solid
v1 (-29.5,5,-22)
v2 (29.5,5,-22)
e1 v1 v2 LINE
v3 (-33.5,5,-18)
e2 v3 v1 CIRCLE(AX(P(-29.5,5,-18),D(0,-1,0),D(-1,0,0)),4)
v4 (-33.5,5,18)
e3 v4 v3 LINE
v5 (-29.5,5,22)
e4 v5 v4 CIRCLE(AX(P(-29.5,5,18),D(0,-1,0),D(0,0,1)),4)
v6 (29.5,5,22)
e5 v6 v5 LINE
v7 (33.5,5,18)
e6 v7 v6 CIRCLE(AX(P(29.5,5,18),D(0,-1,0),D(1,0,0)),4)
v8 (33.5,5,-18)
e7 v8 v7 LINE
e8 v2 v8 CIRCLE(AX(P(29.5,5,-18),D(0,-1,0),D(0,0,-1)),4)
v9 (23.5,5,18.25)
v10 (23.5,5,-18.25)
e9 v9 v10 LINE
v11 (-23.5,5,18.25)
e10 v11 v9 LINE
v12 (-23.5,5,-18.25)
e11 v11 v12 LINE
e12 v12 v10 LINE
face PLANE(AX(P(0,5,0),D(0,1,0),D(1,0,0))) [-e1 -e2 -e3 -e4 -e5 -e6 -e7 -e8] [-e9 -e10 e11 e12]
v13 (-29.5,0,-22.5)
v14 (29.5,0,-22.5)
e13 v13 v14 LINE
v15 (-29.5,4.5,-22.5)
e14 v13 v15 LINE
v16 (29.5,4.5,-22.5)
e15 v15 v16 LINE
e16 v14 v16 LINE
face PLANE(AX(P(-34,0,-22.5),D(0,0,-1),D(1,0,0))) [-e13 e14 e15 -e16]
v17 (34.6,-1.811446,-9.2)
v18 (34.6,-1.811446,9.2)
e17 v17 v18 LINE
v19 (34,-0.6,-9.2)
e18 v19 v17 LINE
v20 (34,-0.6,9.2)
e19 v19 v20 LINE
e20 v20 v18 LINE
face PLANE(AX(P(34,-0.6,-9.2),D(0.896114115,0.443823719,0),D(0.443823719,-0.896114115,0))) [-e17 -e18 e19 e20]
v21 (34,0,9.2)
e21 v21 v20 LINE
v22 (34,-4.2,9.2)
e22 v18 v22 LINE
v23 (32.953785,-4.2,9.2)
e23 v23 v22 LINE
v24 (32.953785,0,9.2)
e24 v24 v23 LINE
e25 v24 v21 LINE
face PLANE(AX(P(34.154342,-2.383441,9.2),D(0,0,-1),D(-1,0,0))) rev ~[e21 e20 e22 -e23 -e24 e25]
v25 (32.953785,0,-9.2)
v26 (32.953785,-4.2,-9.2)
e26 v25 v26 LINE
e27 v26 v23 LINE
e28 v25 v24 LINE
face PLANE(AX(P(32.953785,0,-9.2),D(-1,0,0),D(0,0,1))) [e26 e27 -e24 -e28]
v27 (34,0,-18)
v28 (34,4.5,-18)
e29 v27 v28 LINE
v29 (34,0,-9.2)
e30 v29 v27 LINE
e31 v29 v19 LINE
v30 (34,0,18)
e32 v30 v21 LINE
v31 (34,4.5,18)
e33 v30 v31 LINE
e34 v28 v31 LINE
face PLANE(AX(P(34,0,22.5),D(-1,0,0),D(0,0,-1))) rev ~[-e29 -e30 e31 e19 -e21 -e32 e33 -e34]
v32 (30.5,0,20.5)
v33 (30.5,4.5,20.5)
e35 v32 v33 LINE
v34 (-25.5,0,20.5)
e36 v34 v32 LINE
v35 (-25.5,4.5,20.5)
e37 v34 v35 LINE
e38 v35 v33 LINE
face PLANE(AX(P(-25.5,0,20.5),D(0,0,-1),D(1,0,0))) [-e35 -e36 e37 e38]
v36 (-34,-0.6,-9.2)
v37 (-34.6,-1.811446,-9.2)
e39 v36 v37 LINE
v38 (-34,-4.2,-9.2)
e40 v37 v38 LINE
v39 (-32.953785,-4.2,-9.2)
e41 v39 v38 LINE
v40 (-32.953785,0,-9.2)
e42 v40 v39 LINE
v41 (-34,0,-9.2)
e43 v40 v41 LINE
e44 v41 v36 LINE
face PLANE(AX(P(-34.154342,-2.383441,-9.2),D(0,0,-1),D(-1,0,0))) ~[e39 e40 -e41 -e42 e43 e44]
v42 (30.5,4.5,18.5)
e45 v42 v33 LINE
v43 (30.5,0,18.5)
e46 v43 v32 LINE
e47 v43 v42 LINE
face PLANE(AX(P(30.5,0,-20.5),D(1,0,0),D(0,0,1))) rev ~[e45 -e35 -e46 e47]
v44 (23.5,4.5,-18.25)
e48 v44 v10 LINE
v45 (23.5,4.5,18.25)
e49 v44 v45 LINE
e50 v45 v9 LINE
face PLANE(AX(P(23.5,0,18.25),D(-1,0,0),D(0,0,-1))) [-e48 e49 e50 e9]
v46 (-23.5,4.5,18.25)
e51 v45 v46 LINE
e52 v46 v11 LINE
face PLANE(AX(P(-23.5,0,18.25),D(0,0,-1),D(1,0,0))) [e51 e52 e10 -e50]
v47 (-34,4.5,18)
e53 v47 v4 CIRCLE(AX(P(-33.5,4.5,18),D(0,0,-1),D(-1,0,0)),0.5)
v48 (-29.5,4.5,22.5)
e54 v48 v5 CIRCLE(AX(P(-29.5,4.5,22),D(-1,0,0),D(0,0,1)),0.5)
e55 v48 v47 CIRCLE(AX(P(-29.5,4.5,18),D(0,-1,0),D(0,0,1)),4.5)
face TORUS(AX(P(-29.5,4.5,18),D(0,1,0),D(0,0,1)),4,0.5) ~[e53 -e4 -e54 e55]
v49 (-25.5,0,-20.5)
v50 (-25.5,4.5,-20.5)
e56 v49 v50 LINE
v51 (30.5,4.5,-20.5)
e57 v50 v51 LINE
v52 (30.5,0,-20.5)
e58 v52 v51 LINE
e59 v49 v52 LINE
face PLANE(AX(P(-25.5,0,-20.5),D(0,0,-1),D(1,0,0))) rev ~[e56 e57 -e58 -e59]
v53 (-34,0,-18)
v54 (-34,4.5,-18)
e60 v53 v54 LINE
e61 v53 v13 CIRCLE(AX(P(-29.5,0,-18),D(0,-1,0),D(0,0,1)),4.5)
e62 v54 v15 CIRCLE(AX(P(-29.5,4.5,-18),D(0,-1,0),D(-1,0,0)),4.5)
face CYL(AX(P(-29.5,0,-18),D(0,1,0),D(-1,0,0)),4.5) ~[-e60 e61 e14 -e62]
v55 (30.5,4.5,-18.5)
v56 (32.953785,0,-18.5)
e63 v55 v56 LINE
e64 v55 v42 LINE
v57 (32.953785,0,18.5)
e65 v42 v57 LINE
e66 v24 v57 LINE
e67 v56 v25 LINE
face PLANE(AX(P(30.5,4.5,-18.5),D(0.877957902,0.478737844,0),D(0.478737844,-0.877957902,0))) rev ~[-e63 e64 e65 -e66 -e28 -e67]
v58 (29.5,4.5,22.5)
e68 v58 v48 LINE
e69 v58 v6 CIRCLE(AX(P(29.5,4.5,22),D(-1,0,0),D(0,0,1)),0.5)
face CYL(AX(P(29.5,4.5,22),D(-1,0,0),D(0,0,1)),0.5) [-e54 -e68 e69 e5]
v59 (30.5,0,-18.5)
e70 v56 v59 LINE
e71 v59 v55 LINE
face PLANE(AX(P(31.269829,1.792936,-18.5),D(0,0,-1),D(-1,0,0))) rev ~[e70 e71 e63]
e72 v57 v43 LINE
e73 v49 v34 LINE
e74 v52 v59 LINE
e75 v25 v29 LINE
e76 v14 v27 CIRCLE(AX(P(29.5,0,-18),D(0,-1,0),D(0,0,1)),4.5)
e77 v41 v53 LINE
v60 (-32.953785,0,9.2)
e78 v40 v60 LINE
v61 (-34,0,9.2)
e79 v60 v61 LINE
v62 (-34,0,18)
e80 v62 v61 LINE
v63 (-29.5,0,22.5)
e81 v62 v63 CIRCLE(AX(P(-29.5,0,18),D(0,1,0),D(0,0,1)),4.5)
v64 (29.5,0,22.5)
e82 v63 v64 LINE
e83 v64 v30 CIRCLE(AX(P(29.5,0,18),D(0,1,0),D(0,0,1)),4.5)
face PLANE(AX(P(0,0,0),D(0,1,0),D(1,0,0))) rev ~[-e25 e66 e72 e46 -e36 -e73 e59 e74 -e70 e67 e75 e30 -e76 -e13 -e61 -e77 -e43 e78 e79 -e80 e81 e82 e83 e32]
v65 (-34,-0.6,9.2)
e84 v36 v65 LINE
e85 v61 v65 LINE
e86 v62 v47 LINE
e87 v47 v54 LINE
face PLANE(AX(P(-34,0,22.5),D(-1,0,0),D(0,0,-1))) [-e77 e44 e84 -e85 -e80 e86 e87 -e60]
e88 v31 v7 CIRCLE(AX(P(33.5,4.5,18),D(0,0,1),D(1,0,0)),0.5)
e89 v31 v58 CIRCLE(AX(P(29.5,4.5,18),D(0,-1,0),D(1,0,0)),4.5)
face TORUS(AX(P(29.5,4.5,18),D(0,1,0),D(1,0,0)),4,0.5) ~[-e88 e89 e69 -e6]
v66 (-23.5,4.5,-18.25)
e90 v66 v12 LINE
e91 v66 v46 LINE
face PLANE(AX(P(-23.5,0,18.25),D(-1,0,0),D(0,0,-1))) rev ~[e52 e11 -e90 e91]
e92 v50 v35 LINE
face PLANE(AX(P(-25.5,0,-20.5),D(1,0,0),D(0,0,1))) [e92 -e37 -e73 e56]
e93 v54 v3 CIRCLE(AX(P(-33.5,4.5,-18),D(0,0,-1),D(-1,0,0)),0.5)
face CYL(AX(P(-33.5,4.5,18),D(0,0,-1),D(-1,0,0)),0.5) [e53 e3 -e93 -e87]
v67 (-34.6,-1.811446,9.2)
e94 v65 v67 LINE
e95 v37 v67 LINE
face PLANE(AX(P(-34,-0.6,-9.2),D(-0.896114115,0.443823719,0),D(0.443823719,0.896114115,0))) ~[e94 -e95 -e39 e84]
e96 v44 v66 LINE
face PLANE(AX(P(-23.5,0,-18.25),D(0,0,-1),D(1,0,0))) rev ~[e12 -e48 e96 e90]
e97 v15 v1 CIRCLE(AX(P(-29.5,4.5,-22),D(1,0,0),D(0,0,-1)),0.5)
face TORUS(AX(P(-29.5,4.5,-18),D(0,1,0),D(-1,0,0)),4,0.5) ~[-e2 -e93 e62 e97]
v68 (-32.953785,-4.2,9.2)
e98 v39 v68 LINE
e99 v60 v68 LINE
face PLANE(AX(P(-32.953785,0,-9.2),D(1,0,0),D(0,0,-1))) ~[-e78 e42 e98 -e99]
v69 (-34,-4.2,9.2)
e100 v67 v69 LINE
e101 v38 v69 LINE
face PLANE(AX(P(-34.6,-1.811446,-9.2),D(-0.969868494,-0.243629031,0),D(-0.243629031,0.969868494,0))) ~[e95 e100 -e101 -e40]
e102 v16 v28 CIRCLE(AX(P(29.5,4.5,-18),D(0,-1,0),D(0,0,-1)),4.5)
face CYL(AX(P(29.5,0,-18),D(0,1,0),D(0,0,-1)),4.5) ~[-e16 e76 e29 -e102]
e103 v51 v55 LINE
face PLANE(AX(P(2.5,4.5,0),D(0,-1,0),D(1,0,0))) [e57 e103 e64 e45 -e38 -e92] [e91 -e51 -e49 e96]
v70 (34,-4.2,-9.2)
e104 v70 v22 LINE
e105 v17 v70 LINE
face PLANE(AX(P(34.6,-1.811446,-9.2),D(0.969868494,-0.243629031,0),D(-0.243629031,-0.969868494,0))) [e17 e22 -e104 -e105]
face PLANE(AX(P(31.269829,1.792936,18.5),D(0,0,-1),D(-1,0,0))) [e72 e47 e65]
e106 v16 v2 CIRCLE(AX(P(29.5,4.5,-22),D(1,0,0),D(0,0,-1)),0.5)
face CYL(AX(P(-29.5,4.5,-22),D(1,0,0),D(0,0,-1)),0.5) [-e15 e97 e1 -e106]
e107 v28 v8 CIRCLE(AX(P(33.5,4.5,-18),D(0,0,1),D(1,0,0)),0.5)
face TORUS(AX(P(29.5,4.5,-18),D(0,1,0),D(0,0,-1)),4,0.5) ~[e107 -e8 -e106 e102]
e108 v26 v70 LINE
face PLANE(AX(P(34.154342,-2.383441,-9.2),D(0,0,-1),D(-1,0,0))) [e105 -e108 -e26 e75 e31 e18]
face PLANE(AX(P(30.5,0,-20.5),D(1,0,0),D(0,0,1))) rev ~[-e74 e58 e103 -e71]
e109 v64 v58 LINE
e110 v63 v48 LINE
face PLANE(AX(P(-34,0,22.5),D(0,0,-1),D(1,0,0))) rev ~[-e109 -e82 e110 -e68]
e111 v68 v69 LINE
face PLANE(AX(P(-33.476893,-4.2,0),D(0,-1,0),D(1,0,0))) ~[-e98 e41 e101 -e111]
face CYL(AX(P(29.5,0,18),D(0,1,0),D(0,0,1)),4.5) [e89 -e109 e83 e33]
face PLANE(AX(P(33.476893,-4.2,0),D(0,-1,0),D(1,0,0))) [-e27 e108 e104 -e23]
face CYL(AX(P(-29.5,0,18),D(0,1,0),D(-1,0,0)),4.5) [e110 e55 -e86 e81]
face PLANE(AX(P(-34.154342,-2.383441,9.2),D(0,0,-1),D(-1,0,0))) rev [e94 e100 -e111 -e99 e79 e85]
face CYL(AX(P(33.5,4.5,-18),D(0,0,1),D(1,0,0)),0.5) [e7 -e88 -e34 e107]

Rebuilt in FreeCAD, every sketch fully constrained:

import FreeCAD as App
import Part
import Sketcher
Q = App.Units.Quantity


def edges_at(feature, points):
    """Names of the edges that pass closest to the given points."""
    edges = feature.Shape.Edges
    near = lambda p: min(range(len(edges)), key=lambda i: edges[i].distToShape(Part.Vertex(*p))[0])
    return sorted({f"Edge{near(p) + 1}" for p in points})

doc = App.newDocument("Part")
body = doc.addObject("PartDesign::Body", "Body")

sketch1 = body.newObject("Sketcher::SketchObject", "Sketch")
sketch1.AttachmentSupport = (doc.getObject("XZ_Plane"), [""])
sketch1.MapMode = "FlatFace"
sketch1.addGeometry(Part.LineSegment(App.Vector(-34, -22.5, 0), App.Vector(-34, 22.5, 0)), False)
sketch1.addGeometry(Part.LineSegment(App.Vector(-34, 22.5, 0), App.Vector(34, 22.5, 0)), False)
sketch1.addGeometry(Part.LineSegment(App.Vector(34, 22.5, 0), App.Vector(34, -22.5, 0)), False)
sketch1.addGeometry(Part.LineSegment(App.Vector(34, -22.5, 0), App.Vector(-34, -22.5, 0)), False)
sketch1.addGeometry(Part.LineSegment(App.Vector(23.5, 18.25, 0), App.Vector(-23.5, 18.25, 0)), False)
sketch1.addGeometry(Part.LineSegment(App.Vector(-23.5, 18.25, 0), App.Vector(-23.5, -18.25, 0)), False)
sketch1.addGeometry(Part.LineSegment(App.Vector(-23.5, -18.25, 0), App.Vector(23.5, -18.25, 0)), False)
sketch1.addGeometry(Part.LineSegment(App.Vector(23.5, -18.25, 0), App.Vector(23.5, 18.25, 0)), False)
sketch1.addConstraint(Sketcher.Constraint("Coincident", 0, 2, 1, 1))
sketch1.addConstraint(Sketcher.Constraint("Coincident", 1, 2, 2, 1))
sketch1.addConstraint(Sketcher.Constraint("Coincident", 2, 2, 3, 1))
sketch1.addConstraint(Sketcher.Constraint("Coincident", 3, 2, 0, 1))
sketch1.addConstraint(Sketcher.Constraint("Coincident", 4, 2, 5, 1))
sketch1.addConstraint(Sketcher.Constraint("Coincident", 5, 2, 6, 1))
sketch1.addConstraint(Sketcher.Constraint("Coincident", 6, 2, 7, 1))
sketch1.addConstraint(Sketcher.Constraint("Coincident", 7, 2, 4, 1))
sketch1.addConstraint(Sketcher.Constraint("Vertical", 0))
sketch1.addConstraint(Sketcher.Constraint("Horizontal", 1))
sketch1.addConstraint(Sketcher.Constraint("Vertical", 2))
sketch1.addConstraint(Sketcher.Constraint("Horizontal", 3))
sketch1.addConstraint(Sketcher.Constraint("Horizontal", 4))
sketch1.addConstraint(Sketcher.Constraint("Vertical", 5))
sketch1.addConstraint(Sketcher.Constraint("Horizontal", 6))
sketch1.addConstraint(Sketcher.Constraint("Vertical", 7))
sketch1.addConstraint(Sketcher.Constraint("Symmetric", 0, 2, 2, 2, -1, 1))
sketch1.addConstraint(Sketcher.Constraint("Symmetric", 4, 2, 6, 2, -1, 1))
sketch1.addConstraint(Sketcher.Constraint("DistanceX", 1, 1, 1, 2, Q("68 mm")))
sketch1.addConstraint(Sketcher.Constraint("DistanceX", 4, 2, 4, 1, Q("47 mm")))
sketch1.addConstraint(Sketcher.Constraint("DistanceY", 0, 1, 0, 2, Q("45 mm")))
sketch1.addConstraint(Sketcher.Constraint("DistanceY", 5, 2, 5, 1, Q("36.5 mm")))
pad1 = body.newObject("PartDesign::Pad", "Pad")
pad1.Profile = sketch1
pad1.Length = 5
pad1.Reversed = True

sketch2 = body.newObject("Sketcher::SketchObject", "Sketch001")
sketch2.AttachmentSupport = (doc.getObject("XZ_Plane"), [""])
sketch2.MapMode = "FlatFace"
sketch2.addGeometry(Part.LineSegment(App.Vector(-25.5, 20.5, 0), App.Vector(-25.5, -20.5, 0)), False)
sketch2.addGeometry(Part.LineSegment(App.Vector(-25.5, -20.5, 0), App.Vector(30.5, -20.5, 0)), False)
sketch2.addGeometry(Part.LineSegment(App.Vector(30.5, -20.5, 0), App.Vector(30.5, 20.5, 0)), False)
sketch2.addGeometry(Part.LineSegment(App.Vector(30.5, 20.5, 0), App.Vector(-25.5, 20.5, 0)), False)
sketch2.addConstraint(Sketcher.Constraint("Coincident", 0, 2, 1, 1))
sketch2.addConstraint(Sketcher.Constraint("Coincident", 1, 2, 2, 1))
sketch2.addConstraint(Sketcher.Constraint("Coincident", 2, 2, 3, 1))
sketch2.addConstraint(Sketcher.Constraint("Coincident", 3, 2, 0, 1))
sketch2.addConstraint(Sketcher.Constraint("Vertical", 0))
sketch2.addConstraint(Sketcher.Constraint("Horizontal", 1))
sketch2.addConstraint(Sketcher.Constraint("Vertical", 2))
sketch2.addConstraint(Sketcher.Constraint("Horizontal", 3))
sketch2.addConstraint(Sketcher.Constraint("DistanceX", 1, 1, 1, 2, Q("56 mm")))
sketch2.addConstraint(Sketcher.Constraint("DistanceY", 0, 2, 0, 1, Q("41 mm")))
sketch2.addConstraint(Sketcher.Constraint("DistanceX", 0, 2, -1, 1, Q("25.5 mm")))
sketch2.addConstraint(Sketcher.Constraint("DistanceY", 0, 2, -1, 1, Q("20.5 mm")))
pocket1 = body.newObject("PartDesign::Pocket", "Pocket")
pocket1.Profile = sketch2
pocket1.Length = 4.5

sketch3 = body.newObject("Sketcher::SketchObject", "Sketch002")
sketch3.AttachmentSupport = (doc.getObject("XY_Plane"), [""])
sketch3.MapMode = "FlatFace"
sketch3.addGeometry(Part.LineSegment(App.Vector(32.953785, 0, 0), App.Vector(30.5, 4.5, 0)), False)
sketch3.addGeometry(Part.LineSegment(App.Vector(30.5, 4.5, 0), App.Vector(30.5, 0, 0)), False)
sketch3.addGeometry(Part.LineSegment(App.Vector(30.5, 0, 0), App.Vector(32.953785, 0, 0)), False)
sketch3.addConstraint(Sketcher.Constraint("Coincident", 0, 2, 1, 1))
sketch3.addConstraint(Sketcher.Constraint("Coincident", 1, 2, 2, 1))
sketch3.addConstraint(Sketcher.Constraint("Coincident", 2, 2, 0, 1))
sketch3.addConstraint(Sketcher.Constraint("Vertical", 1))
sketch3.addConstraint(Sketcher.Constraint("Horizontal", 2))
sketch3.addConstraint(Sketcher.Constraint("PointOnObject", 1, 2, -1))
sketch3.addConstraint(Sketcher.Constraint("DistanceY", 1, 2, 1, 1, Q("4.5 mm")))
sketch3.addConstraint(Sketcher.Constraint("DistanceX", -1, 1, 0, 2, Q("30.5 mm")))
sketch3.addConstraint(Sketcher.Constraint("Distance", 0, Q("5.12553 mm")))
pocket2 = body.newObject("PartDesign::Pocket", "Pocket001")
pocket2.Profile = sketch3
pocket2.Type = "TwoLengths"
pocket2.Length = 18.5
pocket2.Length2 = 18.5
pocket2.Reversed = True
doc.recompute()

fillet = body.newObject("PartDesign::Fillet", "Fillet")
fillet.Base = (pocket2, edges_at(pocket2, [
    (-34, 2.5, -22.5),
    (34, 2.5, -22.5),
    (34, 2.5, 22.5),
    (-34, 2.5, 22.5),
]))
fillet.Radius = 4.5
doc.recompute()

fillet2 = body.newObject("PartDesign::Fillet", "Fillet001")
fillet2.Base = (fillet, edges_at(fillet, [
    (-34, 5, 0),
    (0, 5, -22.5),
    (0, 5, 22.5),
    (34, 5, 0),
    (32.682, 5, 21.182),
    (32.682, 5, -21.182),
    (-32.682, 5, 21.182),
    (-32.682, 5, -21.182),
]))
fillet2.Radius = 0.5

sketch4 = body.newObject("Sketcher::SketchObject", "Sketch003")
sketch4.AttachmentSupport = (doc.getObject("XZ_Plane"), [""])
sketch4.MapMode = "FlatFace"
sketch4.addGeometry(Part.LineSegment(App.Vector(32.953785, 9.2, 0), App.Vector(32.953785, -9.2, 0)), False)
sketch4.addGeometry(Part.LineSegment(App.Vector(32.953785, -9.2, 0), App.Vector(34, -9.2, 0)), False)
sketch4.addGeometry(Part.LineSegment(App.Vector(34, -9.2, 0), App.Vector(34, 9.2, 0)), False)
sketch4.addGeometry(Part.LineSegment(App.Vector(34, 9.2, 0), App.Vector(32.953785, 9.2, 0)), False)
sketch4.addConstraint(Sketcher.Constraint("Coincident", 0, 2, 1, 1))
sketch4.addConstraint(Sketcher.Constraint("Coincident", 1, 2, 2, 1))
sketch4.addConstraint(Sketcher.Constraint("Coincident", 2, 2, 3, 1))
sketch4.addConstraint(Sketcher.Constraint("Coincident", 3, 2, 0, 1))
sketch4.addConstraint(Sketcher.Constraint("Vertical", 0))
sketch4.addConstraint(Sketcher.Constraint("Horizontal", 1))
sketch4.addConstraint(Sketcher.Constraint("Vertical", 2))
sketch4.addConstraint(Sketcher.Constraint("Horizontal", 3))
sketch4.addConstraint(Sketcher.Constraint("DistanceY", 0, 2, 0, 1, Q("18.4 mm")))
sketch4.addConstraint(Sketcher.Constraint("DistanceX", -1, 1, 1, 2, Q("34 mm")))
sketch4.addConstraint(Sketcher.Constraint("DistanceY", 0, 2, -1, 1, Q("9.2 mm")))
sketch4.addConstraint(Sketcher.Constraint("DistanceX", 1, 1, 1, 2, Q("1.046215 mm")))
pad2 = body.newObject("PartDesign::Pad", "Pad001")
pad2.Profile = sketch4
pad2.Length = 4.2

sketch5 = body.newObject("Sketcher::SketchObject", "Sketch004")
sketch5.AttachmentSupport = (doc.getObject("XY_Plane"), [""])
sketch5.MapMode = "FlatFace"
sketch5.AttachmentOffset = App.Placement(App.Vector(0, 0, -9.2), App.Rotation())
sketch5.addGeometry(Part.LineSegment(App.Vector(34, -0.6, 0), App.Vector(34.6, -1.811446, 0)), False)
sketch5.addGeometry(Part.LineSegment(App.Vector(34.6, -1.811446, 0), App.Vector(34, -4.2, 0)), False)
sketch5.addGeometry(Part.LineSegment(App.Vector(34, -4.2, 0), App.Vector(34, -0.6, 0)), False)
sketch5.addConstraint(Sketcher.Constraint("Coincident", 0, 2, 1, 1))
sketch5.addConstraint(Sketcher.Constraint("Coincident", 1, 2, 2, 1))
sketch5.addConstraint(Sketcher.Constraint("Coincident", 2, 2, 0, 1))
sketch5.addConstraint(Sketcher.Constraint("Vertical", 2))
sketch5.addConstraint(Sketcher.Constraint("DistanceY", 2, 1, 2, 2, Q("3.6 mm")))
sketch5.addConstraint(Sketcher.Constraint("DistanceX", -1, 1, 1, 2, Q("34 mm")))
sketch5.addConstraint(Sketcher.Constraint("DistanceX", -1, 1, 0, 2, Q("34.6 mm")))
sketch5.addConstraint(Sketcher.Constraint("DistanceY", 1, 2, -1, 1, Q("4.2 mm")))
sketch5.addConstraint(Sketcher.Constraint("Distance", 0, Q("1.351888 mm")))
pad3 = body.newObject("PartDesign::Pad", "Pad002")
pad3.Profile = sketch5
pad3.Length = 18.4
doc.recompute()

mirrored = body.newObject("PartDesign::Mirrored", "Mirrored")
mirrored.Originals = [pad2, pad3]
mirrored.MirrorPlane = (doc.getObject("YZ_Plane"), [""])
body.Tip = mirrored

doc.recompute()
